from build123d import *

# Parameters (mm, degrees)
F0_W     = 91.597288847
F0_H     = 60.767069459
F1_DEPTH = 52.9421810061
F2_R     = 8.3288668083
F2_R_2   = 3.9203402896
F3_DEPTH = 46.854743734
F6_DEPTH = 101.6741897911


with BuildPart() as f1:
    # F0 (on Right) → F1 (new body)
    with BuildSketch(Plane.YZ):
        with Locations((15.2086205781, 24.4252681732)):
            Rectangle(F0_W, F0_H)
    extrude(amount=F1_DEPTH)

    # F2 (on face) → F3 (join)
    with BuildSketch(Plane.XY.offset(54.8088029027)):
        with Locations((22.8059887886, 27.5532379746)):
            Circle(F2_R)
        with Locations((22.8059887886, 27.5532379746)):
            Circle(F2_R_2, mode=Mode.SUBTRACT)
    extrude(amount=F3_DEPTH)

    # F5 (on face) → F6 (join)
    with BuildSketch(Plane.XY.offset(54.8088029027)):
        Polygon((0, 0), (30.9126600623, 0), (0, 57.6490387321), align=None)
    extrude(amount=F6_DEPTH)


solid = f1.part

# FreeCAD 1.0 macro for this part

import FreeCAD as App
import Part
import Sketcher
from FreeCAD import Vector

doc = App.newDocument("Part")
body = doc.addObject("PartDesign::Body", "Body")

sketch1 = body.newObject("Sketcher::SketchObject", "Sketch")
sketch1.AttachmentSupport = (doc.getObject("YZ_Plane"), [""])
sketch1.MapMode = "FlatFace"
sketch1.addGeometry([
    Part.LineSegment(Vector(-30.590024, 54.808803, 0), Vector(-30.590024, -5.958267, 0)),
    Part.LineSegment(Vector(-30.590024, -5.958267, 0), Vector(61.007265, -5.958267, 0)),
    Part.LineSegment(Vector(61.007265, -5.958267, 0), Vector(61.007265, 54.808803, 0)),
    Part.LineSegment(Vector(61.007265, 54.808803, 0), Vector(-30.590024, 54.808803, 0)),
], False)
sketch1.addConstraint([
    Sketcher.Constraint("Coincident", 0, 2, 1, 1),
    Sketcher.Constraint("Coincident", 1, 2, 2, 1),
    Sketcher.Constraint("Coincident", 2, 2, 3, 1),
    Sketcher.Constraint("Coincident", 3, 2, 0, 1),
    Sketcher.Constraint("Vertical", 0),
    Sketcher.Constraint("Horizontal", 1),
    Sketcher.Constraint("Vertical", 2),
    Sketcher.Constraint("Horizontal", 3),
    Sketcher.Constraint("DistanceX", 1, 1, 1, 2, 91.597289),
    Sketcher.Constraint("DistanceY", 0, 2, 0, 1, 60.767069),
    Sketcher.Constraint("DistanceX", 0, 2, -1, 1, 30.590024),
    Sketcher.Constraint("DistanceY", 0, 2, -1, 1, 5.958267),
])
pad1 = body.newObject("PartDesign::Pad", "Pad")
pad1.Profile = sketch1
pad1.Length = 52.942181

sketch2 = body.newObject("Sketcher::SketchObject", "Sketch001")
sketch2.AttachmentSupport = (doc.getObject("XY_Plane"), [""])
sketch2.MapMode = "FlatFace"
sketch2.AttachmentOffset = App.Placement(Vector(0, 0, 54.808803), App.Rotation())
sketch2.addGeometry([
    Part.Circle(Vector(22.805989, 27.553238, 0), Vector(0, 0, 1), 8.328867),
    Part.Circle(Vector(22.805989, 27.553238, 0), Vector(0, 0, 1), 3.92034),
], False)
sketch2.addConstraint([
    Sketcher.Constraint("Coincident", 1, 3, 0, 3),
    Sketcher.Constraint("Diameter", 1, 7.840681),
    Sketcher.Constraint("Diameter", 0, 16.657734),
    Sketcher.Constraint("DistanceX", -1, 1, 0, 3, 22.805989),
    Sketcher.Constraint("DistanceY", -1, 1, 0, 3, 27.553238),
])
pad2 = body.newObject("PartDesign::Pad", "Pad001")
pad2.Profile = sketch2
pad2.Length = 46.854744

sketch3 = body.newObject("Sketcher::SketchObject", "Sketch002")
sketch3.AttachmentSupport = (doc.getObject("XY_Plane"), [""])
sketch3.MapMode = "FlatFace"
sketch3.AttachmentOffset = App.Placement(Vector(0, 0, 54.808803), App.Rotation())
sketch3.addGeometry([
    Part.LineSegment(Vector(0, 0, 0), Vector(30.91266, 0, 0)),
    Part.LineSegment(Vector(30.91266, 0, 0), Vector(0, 57.649039, 0)),
    Part.LineSegment(Vector(0, 57.649039, 0), Vector(0, 0, 0)),
], False)
sketch3.addConstraint([
    Sketcher.Constraint("Coincident", 0, 2, 1, 1),
    Sketcher.Constraint("Coincident", 1, 2, 2, 1),
    Sketcher.Constraint("Coincident", 2, 2, 0, 1),
    Sketcher.Constraint("Horizontal", 0),
    Sketcher.Constraint("Vertical", 2),
    Sketcher.Constraint("Coincident", 2, 2, -1, 1),
    Sketcher.Constraint("Distance", 1, 65.414098),
    Sketcher.Constraint("DistanceX", 0, 1, 0, 2, 30.91266),
])
pad3 = body.newObject("PartDesign::Pad", "Pad002")
pad3.Profile = sketch3
pad3.Length = 101.67419

doc.recompute()
